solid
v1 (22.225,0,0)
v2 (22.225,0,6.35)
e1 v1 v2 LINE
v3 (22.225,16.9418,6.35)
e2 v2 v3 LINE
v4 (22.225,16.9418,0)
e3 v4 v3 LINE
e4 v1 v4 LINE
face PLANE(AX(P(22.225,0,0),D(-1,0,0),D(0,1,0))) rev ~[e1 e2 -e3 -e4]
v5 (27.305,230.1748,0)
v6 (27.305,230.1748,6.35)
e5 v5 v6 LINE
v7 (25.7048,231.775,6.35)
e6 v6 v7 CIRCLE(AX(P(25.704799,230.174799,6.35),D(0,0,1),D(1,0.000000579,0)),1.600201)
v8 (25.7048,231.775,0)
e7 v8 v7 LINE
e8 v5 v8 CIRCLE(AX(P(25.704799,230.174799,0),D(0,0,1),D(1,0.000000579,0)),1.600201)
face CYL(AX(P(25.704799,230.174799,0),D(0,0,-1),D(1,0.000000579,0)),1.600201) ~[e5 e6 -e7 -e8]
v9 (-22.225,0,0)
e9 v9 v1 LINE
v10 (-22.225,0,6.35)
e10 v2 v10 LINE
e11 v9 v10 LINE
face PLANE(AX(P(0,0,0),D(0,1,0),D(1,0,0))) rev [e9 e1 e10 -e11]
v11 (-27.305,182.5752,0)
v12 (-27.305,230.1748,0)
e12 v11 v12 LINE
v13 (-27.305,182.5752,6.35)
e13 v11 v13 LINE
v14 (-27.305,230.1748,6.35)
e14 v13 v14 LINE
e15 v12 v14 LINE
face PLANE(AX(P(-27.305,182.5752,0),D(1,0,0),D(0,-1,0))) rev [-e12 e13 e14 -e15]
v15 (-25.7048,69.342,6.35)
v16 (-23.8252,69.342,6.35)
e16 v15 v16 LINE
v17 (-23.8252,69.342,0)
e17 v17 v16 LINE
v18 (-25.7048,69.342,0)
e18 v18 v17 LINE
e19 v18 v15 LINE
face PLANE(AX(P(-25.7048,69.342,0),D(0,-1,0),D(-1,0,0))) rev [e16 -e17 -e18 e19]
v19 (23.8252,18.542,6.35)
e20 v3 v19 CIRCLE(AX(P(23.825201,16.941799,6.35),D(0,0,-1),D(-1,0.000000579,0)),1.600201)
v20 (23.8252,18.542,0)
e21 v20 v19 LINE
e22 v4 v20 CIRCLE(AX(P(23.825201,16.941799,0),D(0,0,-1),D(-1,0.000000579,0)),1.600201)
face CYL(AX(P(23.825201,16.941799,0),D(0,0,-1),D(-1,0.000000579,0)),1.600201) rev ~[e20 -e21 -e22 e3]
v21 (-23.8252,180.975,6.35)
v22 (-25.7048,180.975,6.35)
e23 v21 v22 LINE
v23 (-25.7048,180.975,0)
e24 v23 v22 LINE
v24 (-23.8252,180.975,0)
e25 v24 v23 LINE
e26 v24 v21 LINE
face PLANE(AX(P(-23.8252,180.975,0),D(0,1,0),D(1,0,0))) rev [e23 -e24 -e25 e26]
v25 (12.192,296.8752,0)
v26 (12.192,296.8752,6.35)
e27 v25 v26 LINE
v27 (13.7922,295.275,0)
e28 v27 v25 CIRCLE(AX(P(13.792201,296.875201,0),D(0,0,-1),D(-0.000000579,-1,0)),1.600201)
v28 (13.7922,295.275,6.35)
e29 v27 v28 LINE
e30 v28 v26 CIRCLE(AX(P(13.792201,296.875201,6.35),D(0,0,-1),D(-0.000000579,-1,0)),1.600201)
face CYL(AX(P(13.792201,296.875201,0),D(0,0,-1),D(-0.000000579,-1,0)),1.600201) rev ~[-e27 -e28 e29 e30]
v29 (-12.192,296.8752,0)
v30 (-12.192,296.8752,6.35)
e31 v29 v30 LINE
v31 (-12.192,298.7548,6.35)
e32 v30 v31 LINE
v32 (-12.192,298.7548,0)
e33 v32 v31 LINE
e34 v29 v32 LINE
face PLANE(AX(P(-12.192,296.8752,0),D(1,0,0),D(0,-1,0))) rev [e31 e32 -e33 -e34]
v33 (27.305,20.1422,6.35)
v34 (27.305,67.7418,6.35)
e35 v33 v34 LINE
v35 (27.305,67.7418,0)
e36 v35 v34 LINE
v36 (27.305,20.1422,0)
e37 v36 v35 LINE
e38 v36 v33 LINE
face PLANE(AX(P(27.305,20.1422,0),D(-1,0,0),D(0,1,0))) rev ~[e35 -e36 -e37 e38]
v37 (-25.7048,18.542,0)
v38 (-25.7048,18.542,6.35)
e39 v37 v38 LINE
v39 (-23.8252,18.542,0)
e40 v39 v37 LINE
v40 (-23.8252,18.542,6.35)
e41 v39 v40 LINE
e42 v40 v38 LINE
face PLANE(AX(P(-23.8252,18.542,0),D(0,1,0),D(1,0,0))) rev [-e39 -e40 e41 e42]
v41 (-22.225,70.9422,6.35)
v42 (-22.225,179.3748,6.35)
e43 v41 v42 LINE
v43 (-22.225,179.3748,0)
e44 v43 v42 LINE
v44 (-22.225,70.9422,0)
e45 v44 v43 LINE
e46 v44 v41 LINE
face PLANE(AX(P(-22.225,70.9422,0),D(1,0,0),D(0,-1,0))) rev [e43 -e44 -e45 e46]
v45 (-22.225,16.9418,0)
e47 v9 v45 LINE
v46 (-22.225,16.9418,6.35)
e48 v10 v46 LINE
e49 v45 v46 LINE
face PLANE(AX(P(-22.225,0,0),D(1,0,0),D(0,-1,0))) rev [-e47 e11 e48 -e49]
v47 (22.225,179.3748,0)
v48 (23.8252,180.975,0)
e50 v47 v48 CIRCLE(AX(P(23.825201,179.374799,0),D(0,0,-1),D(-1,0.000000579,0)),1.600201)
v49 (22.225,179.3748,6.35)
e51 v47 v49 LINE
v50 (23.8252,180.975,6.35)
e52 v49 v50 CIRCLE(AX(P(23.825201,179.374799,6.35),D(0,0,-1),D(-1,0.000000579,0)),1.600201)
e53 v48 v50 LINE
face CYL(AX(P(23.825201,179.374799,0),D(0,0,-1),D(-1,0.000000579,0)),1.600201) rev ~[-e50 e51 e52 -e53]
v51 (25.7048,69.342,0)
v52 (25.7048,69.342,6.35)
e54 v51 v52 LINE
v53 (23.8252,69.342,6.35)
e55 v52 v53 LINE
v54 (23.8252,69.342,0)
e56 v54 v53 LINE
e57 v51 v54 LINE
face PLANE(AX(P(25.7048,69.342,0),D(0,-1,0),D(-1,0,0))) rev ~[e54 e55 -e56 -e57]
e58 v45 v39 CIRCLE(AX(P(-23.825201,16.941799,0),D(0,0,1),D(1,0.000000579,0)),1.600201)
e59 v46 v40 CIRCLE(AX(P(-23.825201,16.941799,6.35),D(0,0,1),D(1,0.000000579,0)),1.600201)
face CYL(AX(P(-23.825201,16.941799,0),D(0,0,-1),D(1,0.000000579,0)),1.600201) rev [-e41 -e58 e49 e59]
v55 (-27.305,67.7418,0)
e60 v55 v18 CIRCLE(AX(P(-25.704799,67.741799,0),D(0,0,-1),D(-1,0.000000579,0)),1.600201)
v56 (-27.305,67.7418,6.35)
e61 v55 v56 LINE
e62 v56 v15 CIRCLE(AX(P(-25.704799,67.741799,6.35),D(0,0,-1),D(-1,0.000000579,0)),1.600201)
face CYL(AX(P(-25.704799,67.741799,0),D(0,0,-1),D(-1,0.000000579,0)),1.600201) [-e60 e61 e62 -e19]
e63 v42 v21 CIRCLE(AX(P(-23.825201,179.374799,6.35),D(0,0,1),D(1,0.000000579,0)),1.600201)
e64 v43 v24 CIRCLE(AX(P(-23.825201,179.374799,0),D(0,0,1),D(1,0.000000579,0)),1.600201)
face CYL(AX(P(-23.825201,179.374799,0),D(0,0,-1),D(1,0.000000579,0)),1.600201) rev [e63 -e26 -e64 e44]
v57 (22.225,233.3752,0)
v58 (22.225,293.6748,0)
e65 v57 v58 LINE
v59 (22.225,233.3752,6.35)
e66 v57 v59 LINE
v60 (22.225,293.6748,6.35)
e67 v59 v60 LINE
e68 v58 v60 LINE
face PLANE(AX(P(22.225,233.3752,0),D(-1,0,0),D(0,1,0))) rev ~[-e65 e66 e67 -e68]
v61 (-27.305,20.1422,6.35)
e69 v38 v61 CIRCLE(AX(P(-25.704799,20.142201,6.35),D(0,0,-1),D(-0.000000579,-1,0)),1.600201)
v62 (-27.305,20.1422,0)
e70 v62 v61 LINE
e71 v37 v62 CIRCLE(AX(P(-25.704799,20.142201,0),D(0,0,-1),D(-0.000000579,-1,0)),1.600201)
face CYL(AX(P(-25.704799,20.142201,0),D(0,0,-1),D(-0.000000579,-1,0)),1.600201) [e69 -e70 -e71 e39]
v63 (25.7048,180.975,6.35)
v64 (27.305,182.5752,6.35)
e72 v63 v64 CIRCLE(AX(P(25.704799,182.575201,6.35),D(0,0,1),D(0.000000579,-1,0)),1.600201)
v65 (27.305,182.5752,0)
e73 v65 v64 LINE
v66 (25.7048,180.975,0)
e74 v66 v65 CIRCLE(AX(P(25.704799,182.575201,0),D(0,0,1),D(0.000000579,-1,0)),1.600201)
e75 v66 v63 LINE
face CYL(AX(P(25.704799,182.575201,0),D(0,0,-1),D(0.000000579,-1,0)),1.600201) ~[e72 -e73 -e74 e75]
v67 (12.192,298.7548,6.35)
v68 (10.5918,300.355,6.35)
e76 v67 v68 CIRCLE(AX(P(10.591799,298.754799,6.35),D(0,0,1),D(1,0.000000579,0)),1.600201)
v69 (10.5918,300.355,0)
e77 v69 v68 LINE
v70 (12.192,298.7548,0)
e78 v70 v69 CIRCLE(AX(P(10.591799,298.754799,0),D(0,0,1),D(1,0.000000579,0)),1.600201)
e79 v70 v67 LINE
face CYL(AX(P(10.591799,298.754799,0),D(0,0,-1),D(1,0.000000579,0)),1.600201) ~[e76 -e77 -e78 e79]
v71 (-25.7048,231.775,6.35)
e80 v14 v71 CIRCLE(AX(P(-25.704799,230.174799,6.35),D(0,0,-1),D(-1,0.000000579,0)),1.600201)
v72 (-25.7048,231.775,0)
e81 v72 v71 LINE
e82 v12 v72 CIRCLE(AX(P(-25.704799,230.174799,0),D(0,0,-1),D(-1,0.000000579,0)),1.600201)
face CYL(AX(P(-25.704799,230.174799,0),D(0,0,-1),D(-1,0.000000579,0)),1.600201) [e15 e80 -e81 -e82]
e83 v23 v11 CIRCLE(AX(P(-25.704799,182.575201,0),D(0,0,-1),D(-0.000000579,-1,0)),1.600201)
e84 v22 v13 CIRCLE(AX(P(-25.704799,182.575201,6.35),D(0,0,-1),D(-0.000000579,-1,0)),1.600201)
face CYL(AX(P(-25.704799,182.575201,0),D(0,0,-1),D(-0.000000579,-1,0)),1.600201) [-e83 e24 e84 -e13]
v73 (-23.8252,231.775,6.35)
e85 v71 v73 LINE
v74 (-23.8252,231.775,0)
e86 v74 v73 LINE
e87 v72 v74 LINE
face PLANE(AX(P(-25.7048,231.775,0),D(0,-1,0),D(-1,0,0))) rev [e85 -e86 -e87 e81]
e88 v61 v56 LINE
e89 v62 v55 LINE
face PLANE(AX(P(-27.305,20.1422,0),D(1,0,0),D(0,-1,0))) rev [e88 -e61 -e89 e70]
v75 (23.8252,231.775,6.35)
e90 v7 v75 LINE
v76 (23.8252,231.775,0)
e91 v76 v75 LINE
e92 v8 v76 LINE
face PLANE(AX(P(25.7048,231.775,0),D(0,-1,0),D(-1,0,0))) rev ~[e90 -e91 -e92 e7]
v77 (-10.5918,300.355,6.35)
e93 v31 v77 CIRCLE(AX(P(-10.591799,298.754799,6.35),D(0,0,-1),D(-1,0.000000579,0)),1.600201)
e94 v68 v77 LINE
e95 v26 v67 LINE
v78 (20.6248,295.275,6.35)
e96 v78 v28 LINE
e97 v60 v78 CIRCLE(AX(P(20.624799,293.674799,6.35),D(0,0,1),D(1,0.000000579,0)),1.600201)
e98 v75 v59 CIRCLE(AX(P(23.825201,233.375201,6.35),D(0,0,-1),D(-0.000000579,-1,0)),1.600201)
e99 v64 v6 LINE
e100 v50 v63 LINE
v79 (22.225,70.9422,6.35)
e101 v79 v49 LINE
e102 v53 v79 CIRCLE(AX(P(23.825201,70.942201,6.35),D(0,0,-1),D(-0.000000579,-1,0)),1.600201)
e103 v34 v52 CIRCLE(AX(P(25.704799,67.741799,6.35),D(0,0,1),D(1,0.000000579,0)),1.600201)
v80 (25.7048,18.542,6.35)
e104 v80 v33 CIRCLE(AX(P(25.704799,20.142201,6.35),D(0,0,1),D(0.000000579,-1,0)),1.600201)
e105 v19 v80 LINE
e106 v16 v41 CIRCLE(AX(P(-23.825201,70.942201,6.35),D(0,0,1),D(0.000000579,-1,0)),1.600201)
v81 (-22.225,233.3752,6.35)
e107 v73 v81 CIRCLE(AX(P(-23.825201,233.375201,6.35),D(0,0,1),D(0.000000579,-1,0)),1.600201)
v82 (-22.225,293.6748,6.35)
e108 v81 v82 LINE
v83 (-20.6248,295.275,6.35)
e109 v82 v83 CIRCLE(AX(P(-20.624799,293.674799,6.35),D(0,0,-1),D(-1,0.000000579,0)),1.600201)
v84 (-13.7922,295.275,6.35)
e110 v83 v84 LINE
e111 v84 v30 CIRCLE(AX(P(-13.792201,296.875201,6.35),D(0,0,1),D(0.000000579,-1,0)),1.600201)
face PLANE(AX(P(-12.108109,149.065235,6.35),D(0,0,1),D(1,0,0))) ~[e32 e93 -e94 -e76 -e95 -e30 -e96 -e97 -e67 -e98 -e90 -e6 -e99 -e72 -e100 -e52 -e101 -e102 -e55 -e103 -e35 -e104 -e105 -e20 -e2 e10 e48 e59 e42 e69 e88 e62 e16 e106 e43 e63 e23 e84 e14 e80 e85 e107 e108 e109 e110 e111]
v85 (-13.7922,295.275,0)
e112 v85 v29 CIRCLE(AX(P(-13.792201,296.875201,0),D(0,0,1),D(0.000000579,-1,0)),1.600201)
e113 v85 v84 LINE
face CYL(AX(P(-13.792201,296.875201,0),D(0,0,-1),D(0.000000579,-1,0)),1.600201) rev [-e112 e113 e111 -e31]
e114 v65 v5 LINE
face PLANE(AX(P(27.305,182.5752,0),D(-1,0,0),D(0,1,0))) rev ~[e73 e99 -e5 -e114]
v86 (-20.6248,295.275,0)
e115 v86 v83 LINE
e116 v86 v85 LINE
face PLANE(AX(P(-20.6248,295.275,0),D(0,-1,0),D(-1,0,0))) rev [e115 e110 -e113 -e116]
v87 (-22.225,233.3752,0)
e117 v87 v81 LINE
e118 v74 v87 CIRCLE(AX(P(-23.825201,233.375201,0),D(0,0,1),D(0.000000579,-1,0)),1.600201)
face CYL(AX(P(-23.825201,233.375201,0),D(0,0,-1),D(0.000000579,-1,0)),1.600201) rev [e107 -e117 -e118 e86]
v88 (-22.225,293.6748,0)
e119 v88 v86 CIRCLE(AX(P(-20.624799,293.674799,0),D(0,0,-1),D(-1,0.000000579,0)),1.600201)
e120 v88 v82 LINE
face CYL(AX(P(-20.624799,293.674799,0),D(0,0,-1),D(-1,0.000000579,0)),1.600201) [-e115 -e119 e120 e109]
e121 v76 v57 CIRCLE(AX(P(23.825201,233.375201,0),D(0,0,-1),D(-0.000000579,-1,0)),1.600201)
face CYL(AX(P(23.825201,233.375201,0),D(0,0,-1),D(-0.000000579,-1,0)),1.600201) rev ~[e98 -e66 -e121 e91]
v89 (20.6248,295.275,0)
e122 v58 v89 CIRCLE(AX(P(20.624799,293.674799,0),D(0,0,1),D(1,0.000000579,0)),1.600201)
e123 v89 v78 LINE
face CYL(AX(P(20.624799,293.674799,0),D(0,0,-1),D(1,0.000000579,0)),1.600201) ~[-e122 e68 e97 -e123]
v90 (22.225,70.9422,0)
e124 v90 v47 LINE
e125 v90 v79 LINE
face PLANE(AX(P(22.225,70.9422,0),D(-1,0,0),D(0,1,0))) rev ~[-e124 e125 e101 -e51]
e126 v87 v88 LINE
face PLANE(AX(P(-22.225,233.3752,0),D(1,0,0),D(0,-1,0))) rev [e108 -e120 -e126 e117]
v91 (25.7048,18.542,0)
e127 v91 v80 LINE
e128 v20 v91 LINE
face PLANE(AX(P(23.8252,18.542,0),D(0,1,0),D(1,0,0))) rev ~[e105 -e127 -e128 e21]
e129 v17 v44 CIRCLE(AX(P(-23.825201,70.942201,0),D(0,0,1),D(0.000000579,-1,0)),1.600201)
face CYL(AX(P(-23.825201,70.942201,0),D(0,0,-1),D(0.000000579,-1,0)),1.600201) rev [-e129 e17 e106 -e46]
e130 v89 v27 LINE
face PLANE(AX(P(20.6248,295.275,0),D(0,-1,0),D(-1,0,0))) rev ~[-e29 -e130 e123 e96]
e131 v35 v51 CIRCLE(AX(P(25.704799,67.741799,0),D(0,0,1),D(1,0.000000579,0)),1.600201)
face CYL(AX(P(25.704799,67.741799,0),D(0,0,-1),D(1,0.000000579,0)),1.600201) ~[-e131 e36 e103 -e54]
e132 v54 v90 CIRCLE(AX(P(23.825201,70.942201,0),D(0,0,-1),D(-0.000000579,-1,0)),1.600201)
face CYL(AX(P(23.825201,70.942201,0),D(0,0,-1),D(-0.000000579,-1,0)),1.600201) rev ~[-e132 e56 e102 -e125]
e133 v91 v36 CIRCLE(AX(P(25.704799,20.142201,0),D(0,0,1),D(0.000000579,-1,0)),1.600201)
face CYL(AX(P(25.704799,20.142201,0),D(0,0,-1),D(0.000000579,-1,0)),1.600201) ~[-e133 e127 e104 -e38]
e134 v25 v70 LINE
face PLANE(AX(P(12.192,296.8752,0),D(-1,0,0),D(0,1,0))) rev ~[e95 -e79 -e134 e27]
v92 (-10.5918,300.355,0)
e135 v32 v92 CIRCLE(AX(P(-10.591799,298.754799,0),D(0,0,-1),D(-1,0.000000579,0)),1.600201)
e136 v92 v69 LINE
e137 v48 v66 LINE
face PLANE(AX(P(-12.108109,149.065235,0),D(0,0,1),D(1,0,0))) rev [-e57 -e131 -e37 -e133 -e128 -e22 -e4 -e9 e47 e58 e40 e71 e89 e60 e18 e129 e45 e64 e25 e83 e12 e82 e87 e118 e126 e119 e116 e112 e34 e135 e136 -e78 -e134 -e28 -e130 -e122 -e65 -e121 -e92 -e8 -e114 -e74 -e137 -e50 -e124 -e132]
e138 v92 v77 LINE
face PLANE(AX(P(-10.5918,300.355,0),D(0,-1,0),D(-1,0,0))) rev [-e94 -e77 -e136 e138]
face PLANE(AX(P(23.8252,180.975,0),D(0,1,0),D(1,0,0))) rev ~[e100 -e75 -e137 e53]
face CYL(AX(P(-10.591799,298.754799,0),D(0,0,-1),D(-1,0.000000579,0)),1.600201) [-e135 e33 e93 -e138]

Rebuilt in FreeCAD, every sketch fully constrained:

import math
import FreeCAD as App
import Part
import Sketcher
Q = App.Units.Quantity

doc = App.newDocument("Part")
body = doc.addObject("PartDesign::Body", "Body")

# Sketch on XY plane
sketch1 = body.newObject("Sketcher::SketchObject", "Sketch")
sketch1.AttachmentSupport = (doc.getObject("XY_Plane"), [""])
sketch1.MapMode = "FlatFace"
sketch1.addGeometry(Part.LineSegment(App.Vector(0, 300.4, 0), App.Vector(0, 0, 0)), False)
sketch1.addGeometry(Part.LineSegment(App.Vector(0, 0, 0), App.Vector(22.2, 0, 0)), False)
sketch1.addGeometry(Part.LineSegment(App.Vector(22.2, 0, 0), App.Vector(22.2, 16.9, 0)), False)
sketch1.addGeometry(Part.ArcOfCircle(Part.Circle(App.Vector(23.8, 16.9, 0), App.Vector(0, 0, 1), 1.6), math.radians(90), math.radians(180)), False)
sketch1.addGeometry(Part.LineSegment(App.Vector(23.8, 18.5, 0), App.Vector(25.7, 18.5, 0)), False)
sketch1.addGeometry(Part.ArcOfCircle(Part.Circle(App.Vector(25.7, 20.1, 0), App.Vector(0, 0, 1), 1.6), math.radians(-90), math.radians(0)), False)
sketch1.addGeometry(Part.LineSegment(App.Vector(27.3, 20.1, 0), App.Vector(27.3, 67.7, 0)), False)
sketch1.addGeometry(Part.ArcOfCircle(Part.Circle(App.Vector(25.7, 67.7, 0), App.Vector(0, 0, 1), 1.6), math.radians(0), math.radians(90)), False)
sketch1.addGeometry(Part.LineSegment(App.Vector(25.7, 69.3, 0), App.Vector(23.8, 69.3, 0)), False)
sketch1.addGeometry(Part.ArcOfCircle(Part.Circle(App.Vector(23.8, 70.9, 0), App.Vector(0, 0, 1), 1.6), math.radians(-180), math.radians(-90)), False)
sketch1.addGeometry(Part.LineSegment(App.Vector(22.2, 70.9, 0), App.Vector(22.2, 179.4, 0)), False)
sketch1.addGeometry(Part.ArcOfCircle(Part.Circle(App.Vector(23.8, 179.4, 0), App.Vector(0, 0, 1), 1.6), math.radians(90), math.radians(180)), False)
sketch1.addGeometry(Part.LineSegment(App.Vector(23.8, 181, 0), App.Vector(25.7, 181, 0)), False)
sketch1.addGeometry(Part.ArcOfCircle(Part.Circle(App.Vector(25.7, 182.6, 0), App.Vector(0, 0, 1), 1.6), math.radians(-90), math.radians(0)), False)
sketch1.addGeometry(Part.LineSegment(App.Vector(27.3, 182.6, 0), App.Vector(27.3, 230.2, 0)), False)
sketch1.addGeometry(Part.ArcOfCircle(Part.Circle(App.Vector(25.7, 230.2, 0), App.Vector(0, 0, 1), 1.6), math.radians(0), math.radians(90)), False)
sketch1.addGeometry(Part.LineSegment(App.Vector(25.7, 231.8, 0), App.Vector(23.8, 231.8, 0)), False)
sketch1.addGeometry(Part.ArcOfCircle(Part.Circle(App.Vector(23.8, 233.4, 0), App.Vector(0, 0, 1), 1.6), math.radians(-180), math.radians(-90)), False)
sketch1.addGeometry(Part.LineSegment(App.Vector(22.2, 233.4, 0), App.Vector(22.2, 293.7, 0)), False)
sketch1.addGeometry(Part.ArcOfCircle(Part.Circle(App.Vector(20.6, 293.7, 0), App.Vector(0, 0, 1), 1.6), math.radians(0), math.radians(90)), False)
sketch1.addGeometry(Part.LineSegment(App.Vector(20.6, 295.3, 0), App.Vector(13.8, 295.3, 0)), False)
sketch1.addGeometry(Part.ArcOfCircle(Part.Circle(App.Vector(13.8, 296.9, 0), App.Vector(0, 0, 1), 1.6), math.radians(-180), math.radians(-90)), False)
sketch1.addGeometry(Part.LineSegment(App.Vector(12.2, 296.9, 0), App.Vector(12.2, 298.8, 0)), False)
sketch1.addGeometry(Part.ArcOfCircle(Part.Circle(App.Vector(10.6, 298.8, 0), App.Vector(0, 0, 1), 1.6), math.radians(0), math.radians(90)), False)
sketch1.addGeometry(Part.LineSegment(App.Vector(10.6, 300.4, 0), App.Vector(0, 300.4, 0)), False)
sketch1.addConstraint(Sketcher.Constraint("Coincident", 0, 2, 1, 1))
sketch1.addConstraint(Sketcher.Constraint("Coincident", 1, 2, 2, 1))
sketch1.addConstraint(Sketcher.Constraint("Tangent", 2, 2, 3, 2))
sketch1.addConstraint(Sketcher.Constraint("Tangent", 3, 1, 4, 1))
sketch1.addConstraint(Sketcher.Constraint("Tangent", 4, 2, 5, 1))
sketch1.addConstraint(Sketcher.Constraint("Tangent", 5, 2, 6, 1))
sketch1.addConstraint(Sketcher.Constraint("Tangent", 6, 2, 7, 1))
sketch1.addConstraint(Sketcher.Constraint("Tangent", 7, 2, 8, 1))
sketch1.addConstraint(Sketcher.Constraint("Tangent", 8, 2, 9, 2))
sketch1.addConstraint(Sketcher.Constraint("Tangent", 9, 1, 10, 1))
sketch1.addConstraint(Sketcher.Constraint("Tangent", 10, 2, 11, 2))
sketch1.addConstraint(Sketcher.Constraint("Tangent", 11, 1, 12, 1))
sketch1.addConstraint(Sketcher.Constraint("Tangent", 12, 2, 13, 1))
sketch1.addConstraint(Sketcher.Constraint("Tangent", 13, 2, 14, 1))
sketch1.addConstraint(Sketcher.Constraint("Tangent", 14, 2, 15, 1))
sketch1.addConstraint(Sketcher.Constraint("Tangent", 15, 2, 16, 1))
sketch1.addConstraint(Sketcher.Constraint("Tangent", 16, 2, 17, 2))
sketch1.addConstraint(Sketcher.Constraint("Tangent", 17, 1, 18, 1))
sketch1.addConstraint(Sketcher.Constraint("Tangent", 18, 2, 19, 1))
sketch1.addConstraint(Sketcher.Constraint("Tangent", 19, 2, 20, 1))
sketch1.addConstraint(Sketcher.Constraint("Tangent", 20, 2, 21, 2))
sketch1.addConstraint(Sketcher.Constraint("Tangent", 21, 1, 22, 1))
sketch1.addConstraint(Sketcher.Constraint("Tangent", 22, 2, 23, 1))
sketch1.addConstraint(Sketcher.Constraint("Tangent", 23, 2, 24, 1))
sketch1.addConstraint(Sketcher.Constraint("Coincident", 24, 2, 0, 1))
sketch1.addConstraint(Sketcher.Constraint("Vertical", 0))
sketch1.addConstraint(Sketcher.Constraint("Horizontal", 1))
sketch1.addConstraint(Sketcher.Constraint("Vertical", 2))
sketch1.addConstraint(Sketcher.Constraint("Horizontal", 4))
sketch1.addConstraint(Sketcher.Constraint("Vertical", 6))
sketch1.addConstraint(Sketcher.Constraint("Horizontal", 8))
sketch1.addConstraint(Sketcher.Constraint("Vertical", 10))
sketch1.addConstraint(Sketcher.Constraint("Horizontal", 12))
sketch1.addConstraint(Sketcher.Constraint("Vertical", 14))
sketch1.addConstraint(Sketcher.Constraint("Horizontal", 16))
sketch1.addConstraint(Sketcher.Constraint("Vertical", 18))
sketch1.addConstraint(Sketcher.Constraint("Horizontal", 20))
sketch1.addConstraint(Sketcher.Constraint("Vertical", 22))
sketch1.addConstraint(Sketcher.Constraint("Horizontal", 24))
sketch1.addConstraint(Sketcher.Constraint("Coincident", 0, 2, -1, 1))
sketch1.addConstraint(Sketcher.Constraint("Equal", 3, 5))
sketch1.addConstraint(Sketcher.Constraint("Equal", 5, 7))
sketch1.addConstraint(Sketcher.Constraint("Equal", 7, 9))
sketch1.addConstraint(Sketcher.Constraint("Equal", 9, 11))
sketch1.addConstraint(Sketcher.Constraint("Equal", 11, 13))
sketch1.addConstraint(Sketcher.Constraint("Equal", 13, 15))
sketch1.addConstraint(Sketcher.Constraint("Equal", 15, 17))
sketch1.addConstraint(Sketcher.Constraint("Equal", 17, 19))
sketch1.addConstraint(Sketcher.Constraint("Equal", 19, 21))
sketch1.addConstraint(Sketcher.Constraint("Equal", 21, 23))
sketch1.addConstraint(Sketcher.Constraint("Vertical", 3, 3, 9, 3))
sketch1.addConstraint(Sketcher.Constraint("Vertical", 7, 3, 13, 3))
sketch1.addConstraint(Sketcher.Constraint("Vertical", 11, 3, 17, 3))
sketch1.addConstraint(Sketcher.Constraint("Equal", 6, 14))
sketch1.addConstraint(Sketcher.Constraint("Equal", 16, 22))
sketch1.addConstraint(Sketcher.Constraint("Radius", 3, Q("0.063 in")))
sketch1.addConstraint(Sketcher.Constraint("DistanceY", 3, 3, 7, 3, Q("2 in")))
sketch1.addConstraint(Sketcher.Constraint("DistanceX", 19, 3, 15, 3, Q("0.2 in")))
sketch1.addConstraint(Sketcher.Constraint("DistanceY", 15, 3, 19, 3, Q("2.5 in")))
sketch1.addConstraint(Sketcher.Constraint("DistanceX", 1, 1, 1, 2, Q("0.875 in")))
sketch1.addConstraint(Sketcher.Constraint("DistanceX", 20, 2, 20, 1, Q("0.269 in")))
sketch1.addConstraint(Sketcher.Constraint("DistanceY", 0, 2, 0, 1, Q("11.825 in")))
sketch1.addConstraint(Sketcher.Constraint("DistanceY", 2, 1, 2, 2, Q("0.667 in")))
pad1 = body.newObject("PartDesign::Pad", "Pad")
pad1.Profile = sketch1
pad1.Length = Q("0.25 in")
body2 = doc.addObject("PartDesign::Body", "Body001")
doc.recompute()

body2.BaseFeature = body
doc.recompute()

mirroring = doc.addObject("Part::Mirroring", "Mirroring")
mirroring.Source = body
mirroring.Base = App.Vector(0, 150.1775, 3.175)
mirroring.Normal = App.Vector(-1, 0, 0)
body3 = doc.addObject("PartDesign::Body", "Body002")
body3.BaseFeature = mirroring
boolean = body2.newObject("PartDesign::Boolean", "Boolean")
boolean.Type = "Fuse"
boolean.addObjects([body3])
doc.recompute()
mirroring.Visibility = False

doc.recompute()
